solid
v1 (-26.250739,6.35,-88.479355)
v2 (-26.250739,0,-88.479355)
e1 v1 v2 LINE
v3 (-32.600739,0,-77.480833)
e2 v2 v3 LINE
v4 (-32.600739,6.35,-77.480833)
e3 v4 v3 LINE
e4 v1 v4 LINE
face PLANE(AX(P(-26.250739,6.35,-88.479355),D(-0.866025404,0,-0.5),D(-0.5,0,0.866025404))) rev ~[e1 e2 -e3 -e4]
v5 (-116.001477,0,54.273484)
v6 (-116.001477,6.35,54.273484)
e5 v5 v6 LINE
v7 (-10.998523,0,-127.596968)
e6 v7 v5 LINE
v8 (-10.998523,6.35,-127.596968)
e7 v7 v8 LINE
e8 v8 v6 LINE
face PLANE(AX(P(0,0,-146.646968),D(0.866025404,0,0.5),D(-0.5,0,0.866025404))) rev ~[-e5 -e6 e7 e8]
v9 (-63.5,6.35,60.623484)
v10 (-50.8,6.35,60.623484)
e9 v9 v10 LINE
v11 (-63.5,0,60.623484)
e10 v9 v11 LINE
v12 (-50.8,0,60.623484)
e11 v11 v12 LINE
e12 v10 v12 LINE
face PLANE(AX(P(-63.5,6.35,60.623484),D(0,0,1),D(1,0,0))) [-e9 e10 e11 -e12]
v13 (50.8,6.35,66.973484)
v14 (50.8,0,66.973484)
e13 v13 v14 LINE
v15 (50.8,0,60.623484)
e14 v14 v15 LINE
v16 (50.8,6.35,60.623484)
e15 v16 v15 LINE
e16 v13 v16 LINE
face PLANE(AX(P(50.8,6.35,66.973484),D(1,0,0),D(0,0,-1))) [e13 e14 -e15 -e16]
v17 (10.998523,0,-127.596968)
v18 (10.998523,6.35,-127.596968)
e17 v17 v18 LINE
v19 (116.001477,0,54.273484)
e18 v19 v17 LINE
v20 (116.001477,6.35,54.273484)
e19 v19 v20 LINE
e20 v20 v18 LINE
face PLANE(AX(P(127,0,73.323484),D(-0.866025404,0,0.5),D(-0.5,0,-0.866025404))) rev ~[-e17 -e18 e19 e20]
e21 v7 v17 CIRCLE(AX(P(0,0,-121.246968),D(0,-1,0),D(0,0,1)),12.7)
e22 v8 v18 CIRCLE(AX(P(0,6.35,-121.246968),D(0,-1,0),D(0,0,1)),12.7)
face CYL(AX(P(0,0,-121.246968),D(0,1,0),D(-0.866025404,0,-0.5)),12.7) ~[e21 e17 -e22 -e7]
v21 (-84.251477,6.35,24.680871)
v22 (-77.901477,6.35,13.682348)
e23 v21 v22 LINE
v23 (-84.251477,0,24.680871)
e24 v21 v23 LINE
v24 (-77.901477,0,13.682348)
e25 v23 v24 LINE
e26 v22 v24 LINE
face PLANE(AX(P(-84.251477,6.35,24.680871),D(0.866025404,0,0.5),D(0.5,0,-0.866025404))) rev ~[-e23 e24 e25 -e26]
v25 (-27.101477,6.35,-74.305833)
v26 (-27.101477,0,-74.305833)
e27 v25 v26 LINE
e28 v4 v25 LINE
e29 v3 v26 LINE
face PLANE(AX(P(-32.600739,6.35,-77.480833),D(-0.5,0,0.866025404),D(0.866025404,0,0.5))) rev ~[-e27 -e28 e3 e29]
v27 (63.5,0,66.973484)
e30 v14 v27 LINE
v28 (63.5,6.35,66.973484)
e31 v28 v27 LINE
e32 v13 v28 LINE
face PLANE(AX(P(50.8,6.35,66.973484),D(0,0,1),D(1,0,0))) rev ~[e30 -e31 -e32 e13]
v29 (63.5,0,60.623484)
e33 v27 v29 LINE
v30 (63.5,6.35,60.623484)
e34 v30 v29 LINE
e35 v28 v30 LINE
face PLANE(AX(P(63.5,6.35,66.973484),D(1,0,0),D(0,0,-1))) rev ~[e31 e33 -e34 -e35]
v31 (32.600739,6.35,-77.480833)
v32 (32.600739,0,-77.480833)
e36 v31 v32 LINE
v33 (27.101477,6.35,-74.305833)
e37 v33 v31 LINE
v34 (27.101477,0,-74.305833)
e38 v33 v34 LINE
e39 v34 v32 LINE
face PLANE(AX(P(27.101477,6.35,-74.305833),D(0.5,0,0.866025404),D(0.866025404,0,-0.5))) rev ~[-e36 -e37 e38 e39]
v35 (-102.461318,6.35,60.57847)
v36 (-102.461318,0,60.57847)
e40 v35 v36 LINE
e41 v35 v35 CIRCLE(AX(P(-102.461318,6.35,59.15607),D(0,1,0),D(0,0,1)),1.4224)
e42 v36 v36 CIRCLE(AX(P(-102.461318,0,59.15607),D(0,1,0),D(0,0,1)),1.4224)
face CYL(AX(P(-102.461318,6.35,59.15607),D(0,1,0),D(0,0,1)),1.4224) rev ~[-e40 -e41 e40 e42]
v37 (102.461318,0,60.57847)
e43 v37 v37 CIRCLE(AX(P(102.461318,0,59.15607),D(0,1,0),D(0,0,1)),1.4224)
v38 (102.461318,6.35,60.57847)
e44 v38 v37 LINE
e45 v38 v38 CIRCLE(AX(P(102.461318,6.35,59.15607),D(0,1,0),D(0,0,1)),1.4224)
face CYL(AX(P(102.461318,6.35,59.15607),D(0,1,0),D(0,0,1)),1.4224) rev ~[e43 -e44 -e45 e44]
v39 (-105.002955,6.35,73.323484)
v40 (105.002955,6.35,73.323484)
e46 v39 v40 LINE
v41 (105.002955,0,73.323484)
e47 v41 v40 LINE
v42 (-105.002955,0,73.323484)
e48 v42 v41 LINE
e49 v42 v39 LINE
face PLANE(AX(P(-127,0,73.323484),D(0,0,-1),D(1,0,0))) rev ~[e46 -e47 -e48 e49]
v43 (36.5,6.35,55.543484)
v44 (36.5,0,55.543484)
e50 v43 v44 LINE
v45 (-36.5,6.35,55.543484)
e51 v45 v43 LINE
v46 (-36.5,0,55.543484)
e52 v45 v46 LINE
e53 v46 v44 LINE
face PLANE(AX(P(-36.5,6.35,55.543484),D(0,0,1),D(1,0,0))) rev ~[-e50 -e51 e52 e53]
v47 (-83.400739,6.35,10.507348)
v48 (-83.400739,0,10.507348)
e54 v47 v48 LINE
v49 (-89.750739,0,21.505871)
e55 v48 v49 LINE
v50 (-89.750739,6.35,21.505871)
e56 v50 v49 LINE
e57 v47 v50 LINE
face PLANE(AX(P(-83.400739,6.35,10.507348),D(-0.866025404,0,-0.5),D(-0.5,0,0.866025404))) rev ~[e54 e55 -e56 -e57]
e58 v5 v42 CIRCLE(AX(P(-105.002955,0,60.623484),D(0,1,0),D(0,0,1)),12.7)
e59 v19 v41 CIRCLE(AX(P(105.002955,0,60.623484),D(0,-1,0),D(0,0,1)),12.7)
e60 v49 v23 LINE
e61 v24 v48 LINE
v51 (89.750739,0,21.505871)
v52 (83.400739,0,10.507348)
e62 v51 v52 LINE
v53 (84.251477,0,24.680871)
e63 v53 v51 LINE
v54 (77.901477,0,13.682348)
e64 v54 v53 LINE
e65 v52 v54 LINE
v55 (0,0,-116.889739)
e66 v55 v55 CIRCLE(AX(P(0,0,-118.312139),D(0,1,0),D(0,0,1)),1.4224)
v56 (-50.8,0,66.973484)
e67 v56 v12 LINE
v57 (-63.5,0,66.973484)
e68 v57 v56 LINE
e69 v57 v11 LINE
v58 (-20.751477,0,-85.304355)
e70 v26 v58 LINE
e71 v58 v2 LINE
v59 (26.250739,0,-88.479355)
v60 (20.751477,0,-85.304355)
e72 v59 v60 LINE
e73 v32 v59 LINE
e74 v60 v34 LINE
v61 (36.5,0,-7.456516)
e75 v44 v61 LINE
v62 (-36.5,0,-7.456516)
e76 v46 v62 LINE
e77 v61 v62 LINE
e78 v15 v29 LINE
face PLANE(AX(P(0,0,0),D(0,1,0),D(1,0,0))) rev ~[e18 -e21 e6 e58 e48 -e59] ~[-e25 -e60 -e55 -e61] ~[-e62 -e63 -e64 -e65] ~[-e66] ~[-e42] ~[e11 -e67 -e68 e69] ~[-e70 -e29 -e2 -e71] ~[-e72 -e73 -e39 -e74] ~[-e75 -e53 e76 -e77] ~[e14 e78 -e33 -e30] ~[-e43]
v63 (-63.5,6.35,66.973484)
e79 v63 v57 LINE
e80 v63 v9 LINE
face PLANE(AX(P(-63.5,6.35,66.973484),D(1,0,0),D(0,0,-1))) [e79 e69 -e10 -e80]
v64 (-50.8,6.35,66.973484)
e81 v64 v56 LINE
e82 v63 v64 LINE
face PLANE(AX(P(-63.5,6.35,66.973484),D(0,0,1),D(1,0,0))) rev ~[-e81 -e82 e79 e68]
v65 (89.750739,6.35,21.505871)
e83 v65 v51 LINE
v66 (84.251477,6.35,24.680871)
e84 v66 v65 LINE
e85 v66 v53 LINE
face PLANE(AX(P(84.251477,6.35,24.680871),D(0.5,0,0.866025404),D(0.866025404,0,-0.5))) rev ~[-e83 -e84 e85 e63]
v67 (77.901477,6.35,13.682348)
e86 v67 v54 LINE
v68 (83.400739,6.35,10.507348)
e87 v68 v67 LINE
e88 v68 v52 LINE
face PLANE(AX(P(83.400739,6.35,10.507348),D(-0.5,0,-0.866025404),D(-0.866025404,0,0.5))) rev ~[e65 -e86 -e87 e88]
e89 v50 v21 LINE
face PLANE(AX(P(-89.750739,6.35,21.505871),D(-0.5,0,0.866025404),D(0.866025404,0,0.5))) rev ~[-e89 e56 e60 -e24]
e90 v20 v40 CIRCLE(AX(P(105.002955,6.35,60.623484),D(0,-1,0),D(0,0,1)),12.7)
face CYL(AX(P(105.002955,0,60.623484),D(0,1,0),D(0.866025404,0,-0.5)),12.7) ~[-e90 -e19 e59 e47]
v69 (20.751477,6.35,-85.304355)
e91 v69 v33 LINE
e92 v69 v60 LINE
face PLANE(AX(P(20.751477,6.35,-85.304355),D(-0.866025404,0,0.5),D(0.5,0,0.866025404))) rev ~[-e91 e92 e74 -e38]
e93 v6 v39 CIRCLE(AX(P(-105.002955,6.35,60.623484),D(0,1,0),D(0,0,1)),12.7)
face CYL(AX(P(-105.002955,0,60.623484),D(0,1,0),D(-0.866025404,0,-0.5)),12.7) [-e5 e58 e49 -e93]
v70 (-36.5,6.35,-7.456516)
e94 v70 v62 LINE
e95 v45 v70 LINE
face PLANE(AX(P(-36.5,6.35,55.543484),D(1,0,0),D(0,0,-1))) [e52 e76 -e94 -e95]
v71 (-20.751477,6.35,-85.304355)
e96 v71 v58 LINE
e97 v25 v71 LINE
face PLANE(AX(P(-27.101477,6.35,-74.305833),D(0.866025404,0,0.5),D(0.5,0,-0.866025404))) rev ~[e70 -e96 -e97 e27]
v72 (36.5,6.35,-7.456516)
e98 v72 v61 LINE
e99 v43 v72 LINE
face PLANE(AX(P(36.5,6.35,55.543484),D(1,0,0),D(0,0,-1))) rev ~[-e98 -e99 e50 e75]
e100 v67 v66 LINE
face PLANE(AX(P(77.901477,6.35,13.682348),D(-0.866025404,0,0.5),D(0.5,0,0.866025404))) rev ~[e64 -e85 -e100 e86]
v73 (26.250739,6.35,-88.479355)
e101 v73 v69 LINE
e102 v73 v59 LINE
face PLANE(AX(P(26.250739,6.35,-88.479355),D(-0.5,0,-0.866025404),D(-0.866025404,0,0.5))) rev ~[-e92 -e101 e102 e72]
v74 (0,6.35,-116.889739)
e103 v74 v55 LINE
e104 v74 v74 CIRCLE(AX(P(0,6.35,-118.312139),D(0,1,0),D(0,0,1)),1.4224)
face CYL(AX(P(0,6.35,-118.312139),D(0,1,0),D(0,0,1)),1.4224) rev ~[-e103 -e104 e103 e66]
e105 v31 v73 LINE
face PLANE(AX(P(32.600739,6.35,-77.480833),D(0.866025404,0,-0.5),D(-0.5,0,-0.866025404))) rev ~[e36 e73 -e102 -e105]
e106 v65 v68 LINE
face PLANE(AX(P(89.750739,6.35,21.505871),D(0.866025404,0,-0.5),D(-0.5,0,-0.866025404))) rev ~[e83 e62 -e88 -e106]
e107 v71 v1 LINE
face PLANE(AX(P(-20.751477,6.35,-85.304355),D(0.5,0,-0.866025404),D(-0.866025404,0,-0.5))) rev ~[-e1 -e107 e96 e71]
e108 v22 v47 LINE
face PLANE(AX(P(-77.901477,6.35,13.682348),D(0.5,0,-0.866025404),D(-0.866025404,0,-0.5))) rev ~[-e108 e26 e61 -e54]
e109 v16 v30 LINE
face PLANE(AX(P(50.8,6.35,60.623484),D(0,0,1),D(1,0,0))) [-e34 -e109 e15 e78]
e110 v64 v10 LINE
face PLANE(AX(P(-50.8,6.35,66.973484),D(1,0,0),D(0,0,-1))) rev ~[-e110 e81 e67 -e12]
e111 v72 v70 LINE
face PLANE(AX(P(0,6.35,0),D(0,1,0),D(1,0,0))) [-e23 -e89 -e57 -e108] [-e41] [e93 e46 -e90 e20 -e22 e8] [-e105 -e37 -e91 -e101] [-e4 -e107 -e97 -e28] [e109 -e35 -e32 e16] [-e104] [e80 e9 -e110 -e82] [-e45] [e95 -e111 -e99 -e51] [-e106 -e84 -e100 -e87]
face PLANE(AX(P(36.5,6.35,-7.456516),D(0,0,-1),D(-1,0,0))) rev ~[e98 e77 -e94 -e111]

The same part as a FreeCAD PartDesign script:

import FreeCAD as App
import Part
import Sketcher

V = App.Vector
Q = App.Units.Quantity


def edges_at(feature, points):
    """Names of the edges that pass closest to the given points."""
    edges = feature.Shape.Edges
    near = lambda p: min(range(len(edges)), key=lambda i: edges[i].distToShape(Part.Vertex(*p))[0])
    return sorted({f"Edge{near(p) + 1}" for p in points})


def add_polygon(sketch, points):
    """Adds a closed chain of lines whose ends are joined by coincident constraints."""
    first, n = sketch.GeometryCount, len(points)
    for a, b in zip(points, points[1:] + points[:1]):
        sketch.addGeometry(Part.LineSegment(App.Vector(*a, 0), App.Vector(*b, 0)), False)
    for i in range(n):
        sketch.addConstraint(Sketcher.Constraint("Coincident", first + i, 2, first + (i + 1) % n, 1))

doc = App.newDocument("Part")
params = doc.addObject("Spreadsheet::Sheet", "Params")
for row, (alias, value) in enumerate([
    ("sketch1_width", "10 in"),
    ("sketch1_length", "10 in"),
    ("pad1_length", "0.25 in"),
    ("sketch2_diameter", "0.112 in"),
    ("fillet_radius", "0.5 in"),
    ("sketch3_width", "0.5 in"),
    ("sketch3_length", "0.5 in"),
    ("sketch3_height", "0.25 in"),
    ("sketch3_length2", "0.25 in"),
], start=1):
    params.set(f"A{row}", alias)
    params.set(f"B{row}", "=" + value)
    params.setAlias(f"B{row}", alias)

body = doc.addObject("PartDesign::Body", "Body")

# Sketch on XZ plane
sketch1 = body.newObject("Sketcher::SketchObject", "Sketch")
sketch1.AttachmentSupport = (doc.getObject("XZ_Plane"), [""])
sketch1.MapMode = "FlatFace"
add_polygon(sketch1, [(0, -147), (-127, 73), (127, 73)])  # lines 0-2
sketch1.addConstraint([
    Sketcher.Constraint("Horizontal", 1),
    Sketcher.Constraint("PointOnObject", 2, 2, -2),
    Sketcher.Constraint("Equal", 0, 2),
    Sketcher.Constraint("DistanceX", 1, 1, 1, 2, Q("10 in")),
    Sketcher.Constraint("Distance", 0, Q("10 in")),
    Sketcher.Constraint("DistanceY", 2, 2, -1, 1, Q("146.646968 mm")),
])
sketch1.setExpression("Constraints[6]", "Params.sketch1_width")
sketch1.setExpression("Constraints[7]", "Params.sketch1_length")
pad1 = body.newObject("PartDesign::Pad", "Pad")
pad1.Profile = sketch1
pad1.setExpression("Length", "Params.pad1_length")
pad1.Reversed = True

# Sketch on XZ plane
sketch2 = body.newObject("Sketcher::SketchObject", "Sketch001")
sketch2.AttachmentSupport = (doc.getObject("XZ_Plane"), [""])
sketch2.MapMode = "FlatFace"
sketch2.AttachmentOffset = App.Placement(V(0, 0, -0.25 * 25.4), App.Rotation())
add_polygon(sketch2, [(-36.5, -7.5), (-36.5, 55.5), (36.5, 55.5), (36.5, -7.5)])  # lines 0-3
sketch2.addGeometry(Part.Circle(V(0, -118.3, 0), V(0, 0, 1), 1.4), False)  # 4
sketch2.addGeometry(Part.Circle(V(-102.5, 59.2, 0), V(0, 0, 1), 1.4), False)  # 5
sketch2.addGeometry(Part.Circle(V(102.5, 59.2, 0), V(0, 0, 1), 1.4), False)  # 6
sketch2.addConstraint([
    Sketcher.Constraint("Vertical", 0),
    Sketcher.Constraint("Horizontal", 1),
    Sketcher.Constraint("Vertical", 2),
    Sketcher.Constraint("Horizontal", 3),
    Sketcher.Constraint("Equal", 4, 5),
    Sketcher.Constraint("Equal", 5, 6),
    Sketcher.Constraint("Symmetric", 5, 3, 6, 3, -2),
    Sketcher.Constraint("PointOnObject", 4, 3, -2),
    Sketcher.Constraint("Diameter", 4, Q("0.112 in")),
    Sketcher.Constraint("DistanceX", 1, 1, 1, 2, Q("73 mm")),
    Sketcher.Constraint("DistanceY", 0, 1, 0, 2, Q("63 mm")),
    Sketcher.Constraint("DistanceX", 0, 2, -1, 1, Q("36.5 mm")),
    Sketcher.Constraint("DistanceY", 4, 3, -1, 1, Q("118.312139 mm")),
    Sketcher.Constraint("DistanceX", 5, 3, -1, 1, Q("102.461318 mm")),
    Sketcher.Constraint("DistanceY", -1, 1, 5, 3, Q("59.15607 mm")),
    Sketcher.Constraint("DistanceY", -1, 1, 0, 2, Q("55.543484 mm")),
])
sketch2.setExpression("Constraints[12]", "Params.sketch2_diameter")
pocket1 = body.newObject("PartDesign::Pocket", "Pocket")
pocket1.Profile = sketch2
pocket1.Type = "ThroughAll"
pocket1.Reversed = True
doc.recompute()

fillet = body.newObject("PartDesign::Fillet", "Fillet")
fillet.Base = (pocket1, edges_at(pocket1, [(127, 3.175, 73.323), (-127, 3.175, 73.323), (0, 3.175, -146.647)]))
fillet.setExpression("Radius", "Params.fillet_radius")

# Sketch on XZ plane
sketch3 = body.newObject("Sketcher::SketchObject", "Sketch002")
sketch3.AttachmentSupport = (doc.getObject("XZ_Plane"), [""])
sketch3.MapMode = "FlatFace"
sketch3.AttachmentOffset = App.Placement(V(0, 0, -0.25 * 25.4), App.Rotation())
add_polygon(sketch3, [(-26, -88), (-33, -77), (-27, -74), (-21, -85)])  # lines 0-3
add_polygon(sketch3, [(-78, 14), (-83, 11), (-90, 22), (-84, 25)])  # lines 4-7
add_polygon(sketch3, [(-64, 61), (-64, 67), (-51, 67), (-51, 61)])  # lines 8-11
add_polygon(sketch3, [(51, 61), (51, 67), (64, 67), (64, 61)])  # lines 12-15
add_polygon(sketch3, [(90, 22), (83, 11), (78, 14), (84, 25)])  # lines 16-19
add_polygon(sketch3, [(27, -74), (33, -77), (26, -88), (21, -85)])  # lines 20-23
sketch3.addConstraint([
    Sketcher.Constraint("Vertical", 8),
    Sketcher.Constraint("Horizontal", 9),
    Sketcher.Constraint("Vertical", 10),
    Sketcher.Constraint("Horizontal", 11),
    Sketcher.Constraint("Vertical", 12),
    Sketcher.Constraint("Horizontal", 13),
    Sketcher.Constraint("Vertical", 14),
    Sketcher.Constraint("Horizontal", 15),
    Sketcher.Constraint("Symmetric", 9, 2, 12, 2, -2),
    Sketcher.Constraint("Symmetric", 11, 2, 14, 2, -2),
    Sketcher.Constraint("Symmetric", 4, 2, 16, 2, -2),
    Sketcher.Constraint("Symmetric", 7, 2, 17, 2, -2),
    Sketcher.Constraint("Symmetric", 6, 2, 18, 2, -2),
    Sketcher.Constraint("Symmetric", 5, 2, 19, 2, -2),
    Sketcher.Constraint("Symmetric", 0, 2, 20, 2, -2),
    Sketcher.Constraint("Symmetric", 3, 2, 21, 2, -2),
    Sketcher.Constraint("Symmetric", 2, 2, 22, 2, -2),
    Sketcher.Constraint("Symmetric", 1, 2, 23, 2, -2),
    Sketcher.Constraint("Perpendicular", 0, 1),
    Sketcher.Constraint("Perpendicular", 1, 2),
    Sketcher.Constraint("Perpendicular", 2, 3),
    Sketcher.Constraint("Parallel", 3, 4),
    Sketcher.Constraint("Perpendicular", 4, 5),
    Sketcher.Constraint("Perpendicular", 5, 6),
    Sketcher.Constraint("Perpendicular", 6, 7),
    Sketcher.Constraint("Equal", 3, 4),
    Sketcher.Constraint("Equal", 2, 5),
    Sketcher.Constraint("DistanceX", 9, 1, 9, 2, Q("0.5 in")),
    Sketcher.Constraint("DistanceX", 9, 2, -1, 1, Q("2 in")),
    Sketcher.Constraint("Angle", 0, Q("120 deg")),
    Sketcher.Constraint("DistanceX", 4, 2, 0, 2, Q("2 in")),
    Sketcher.Constraint("Distance", 0, Q("0.5 in")),
    Sketcher.Constraint("DistanceY", 8, 1, 8, 2, Q("0.25 in")),
    Sketcher.Constraint("Distance", 1, Q("0.25 in")),
    Sketcher.Constraint("DistanceX", 0, 2, -1, 1, Q("32.600739 mm")),
    Sketcher.Constraint("DistanceY", -1, 1, 4, 2, Q("10.507348 mm")),
    Sketcher.Constraint("DistanceY", 0, 2, 4, 2, Q("87.988181 mm")),
    Sketcher.Constraint("DistanceY", -1, 1, 8, 2, Q("66.973484 mm")),
])
sketch3.setExpression("Constraints[51]", "Params.sketch3_width")
sketch3.setExpression("Constraints[55]", "Params.sketch3_length")
sketch3.setExpression("Constraints[56]", "Params.sketch3_height")
sketch3.setExpression("Constraints[57]", "Params.sketch3_length2")
pocket2 = body.newObject("PartDesign::Pocket", "Pocket001")
pocket2.Profile = sketch3
pocket2.Type = "ThroughAll"
pocket2.Reversed = True

doc.recompute()
